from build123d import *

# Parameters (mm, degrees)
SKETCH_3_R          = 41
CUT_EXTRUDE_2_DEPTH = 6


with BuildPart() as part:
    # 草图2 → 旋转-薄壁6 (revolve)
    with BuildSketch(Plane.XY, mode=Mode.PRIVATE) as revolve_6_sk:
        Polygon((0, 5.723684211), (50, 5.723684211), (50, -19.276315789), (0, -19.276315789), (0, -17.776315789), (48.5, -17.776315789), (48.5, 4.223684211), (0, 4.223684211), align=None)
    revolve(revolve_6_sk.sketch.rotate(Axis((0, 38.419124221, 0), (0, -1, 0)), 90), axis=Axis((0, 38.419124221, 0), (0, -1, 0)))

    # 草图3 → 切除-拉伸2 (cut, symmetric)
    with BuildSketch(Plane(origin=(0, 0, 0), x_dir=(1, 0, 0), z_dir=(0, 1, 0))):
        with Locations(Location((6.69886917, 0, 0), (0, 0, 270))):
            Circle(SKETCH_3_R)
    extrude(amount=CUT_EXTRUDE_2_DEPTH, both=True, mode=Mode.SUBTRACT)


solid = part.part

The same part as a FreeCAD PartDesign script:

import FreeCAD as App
import Part
import Sketcher

V = App.Vector

doc = App.newDocument("Part")
body = doc.addObject("PartDesign::Body", "Body")

sketch1 = body.newObject("Sketcher::SketchObject", "Sketch")
sketch1.AttachmentSupport = (doc.getObject("XY_Plane"), [""])
sketch1.MapMode = "FlatFace"
sketch1.addGeometry(Part.LineSegment(V(50, 5.723684, 0), V(0, 5.723684, 0)), False)
sketch1.addGeometry(Part.LineSegment(V(0, 5.723684, 0), V(0, 4.223684, 0)), False)
sketch1.addGeometry(Part.LineSegment(V(0, 4.223684, 0), V(48.5, 4.223684, 0)), False)
sketch1.addGeometry(Part.LineSegment(V(48.5, 4.223684, 0), V(48.5, -17.776316, 0)), False)
sketch1.addGeometry(Part.LineSegment(V(48.5, -17.776316, 0), V(0, -17.776316, 0)), False)
sketch1.addGeometry(Part.LineSegment(V(0, -17.776316, 0), V(0, -19.276316, 0)), False)
sketch1.addGeometry(Part.LineSegment(V(0, -19.276316, 0), V(50, -19.276316, 0)), False)
sketch1.addGeometry(Part.LineSegment(V(50, -19.276316, 0), V(50, 5.723684, 0)), False)
sketch1.addConstraint(Sketcher.Constraint("Coincident", 0, 2, 1, 1))
sketch1.addConstraint(Sketcher.Constraint("Coincident", 1, 2, 2, 1))
sketch1.addConstraint(Sketcher.Constraint("Coincident", 2, 2, 3, 1))
sketch1.addConstraint(Sketcher.Constraint("Coincident", 3, 2, 4, 1))
sketch1.addConstraint(Sketcher.Constraint("Coincident", 4, 2, 5, 1))
sketch1.addConstraint(Sketcher.Constraint("Coincident", 5, 2, 6, 1))
sketch1.addConstraint(Sketcher.Constraint("Coincident", 6, 2, 7, 1))
sketch1.addConstraint(Sketcher.Constraint("Coincident", 7, 2, 0, 1))
sketch1.addConstraint(Sketcher.Constraint("Horizontal", 0))
sketch1.addConstraint(Sketcher.Constraint("Vertical", 1))
sketch1.addConstraint(Sketcher.Constraint("Horizontal", 2))
sketch1.addConstraint(Sketcher.Constraint("Vertical", 3))
sketch1.addConstraint(Sketcher.Constraint("Horizontal", 4))
sketch1.addConstraint(Sketcher.Constraint("Vertical", 5))
sketch1.addConstraint(Sketcher.Constraint("Horizontal", 6))
sketch1.addConstraint(Sketcher.Constraint("Vertical", 7))
sketch1.addConstraint(Sketcher.Constraint("PointOnObject", 0, 2, -2))
sketch1.addConstraint(Sketcher.Constraint("PointOnObject", 4, 2, -2))
sketch1.addConstraint(Sketcher.Constraint("Equal", 1, 5))
sketch1.addConstraint(Sketcher.Constraint("DistanceX", 0, 2, 0, 1, 50.0))
sketch1.addConstraint(Sketcher.Constraint("DistanceY", 3, 2, 3, 1, 22.0))
sketch1.addConstraint(Sketcher.Constraint("DistanceY", 7, 1, 7, 2, 25.0))
sketch1.addConstraint(Sketcher.Constraint("DistanceX", 2, 1, 2, 2, 48.5))
sketch1.addConstraint(Sketcher.Constraint("DistanceY", -1, 1, 0, 2, 5.723684))
revolution = body.newObject("PartDesign::Revolution", "Revolution")
revolution.Profile = sketch1
revolution.ReferenceAxis = (sketch1, ["V_Axis"])
revolution.Angle = 360

sketch2 = body.newObject("Sketcher::SketchObject", "Sketch001")
sketch2.AttachmentSupport = (doc.getObject("XZ_Plane"), [""])
sketch2.MapMode = "FlatFace"
sketch2.addGeometry(Part.Circle(V(6.698869, 0, 0), V(0, 0, 1), 41), False)
sketch2.addConstraint(Sketcher.Constraint("PointOnObject", 0, 3, -1))
sketch2.addConstraint(Sketcher.Constraint("Diameter", 0, 82.0))
sketch2.addConstraint(Sketcher.Constraint("DistanceX", -1, 1, 0, 3, 6.698869))
pocket1 = body.newObject("PartDesign::Pocket", "Pocket")
pocket1.Profile = sketch2
pocket1.Length = 12
pocket1.Midplane = True

doc.recompute()
